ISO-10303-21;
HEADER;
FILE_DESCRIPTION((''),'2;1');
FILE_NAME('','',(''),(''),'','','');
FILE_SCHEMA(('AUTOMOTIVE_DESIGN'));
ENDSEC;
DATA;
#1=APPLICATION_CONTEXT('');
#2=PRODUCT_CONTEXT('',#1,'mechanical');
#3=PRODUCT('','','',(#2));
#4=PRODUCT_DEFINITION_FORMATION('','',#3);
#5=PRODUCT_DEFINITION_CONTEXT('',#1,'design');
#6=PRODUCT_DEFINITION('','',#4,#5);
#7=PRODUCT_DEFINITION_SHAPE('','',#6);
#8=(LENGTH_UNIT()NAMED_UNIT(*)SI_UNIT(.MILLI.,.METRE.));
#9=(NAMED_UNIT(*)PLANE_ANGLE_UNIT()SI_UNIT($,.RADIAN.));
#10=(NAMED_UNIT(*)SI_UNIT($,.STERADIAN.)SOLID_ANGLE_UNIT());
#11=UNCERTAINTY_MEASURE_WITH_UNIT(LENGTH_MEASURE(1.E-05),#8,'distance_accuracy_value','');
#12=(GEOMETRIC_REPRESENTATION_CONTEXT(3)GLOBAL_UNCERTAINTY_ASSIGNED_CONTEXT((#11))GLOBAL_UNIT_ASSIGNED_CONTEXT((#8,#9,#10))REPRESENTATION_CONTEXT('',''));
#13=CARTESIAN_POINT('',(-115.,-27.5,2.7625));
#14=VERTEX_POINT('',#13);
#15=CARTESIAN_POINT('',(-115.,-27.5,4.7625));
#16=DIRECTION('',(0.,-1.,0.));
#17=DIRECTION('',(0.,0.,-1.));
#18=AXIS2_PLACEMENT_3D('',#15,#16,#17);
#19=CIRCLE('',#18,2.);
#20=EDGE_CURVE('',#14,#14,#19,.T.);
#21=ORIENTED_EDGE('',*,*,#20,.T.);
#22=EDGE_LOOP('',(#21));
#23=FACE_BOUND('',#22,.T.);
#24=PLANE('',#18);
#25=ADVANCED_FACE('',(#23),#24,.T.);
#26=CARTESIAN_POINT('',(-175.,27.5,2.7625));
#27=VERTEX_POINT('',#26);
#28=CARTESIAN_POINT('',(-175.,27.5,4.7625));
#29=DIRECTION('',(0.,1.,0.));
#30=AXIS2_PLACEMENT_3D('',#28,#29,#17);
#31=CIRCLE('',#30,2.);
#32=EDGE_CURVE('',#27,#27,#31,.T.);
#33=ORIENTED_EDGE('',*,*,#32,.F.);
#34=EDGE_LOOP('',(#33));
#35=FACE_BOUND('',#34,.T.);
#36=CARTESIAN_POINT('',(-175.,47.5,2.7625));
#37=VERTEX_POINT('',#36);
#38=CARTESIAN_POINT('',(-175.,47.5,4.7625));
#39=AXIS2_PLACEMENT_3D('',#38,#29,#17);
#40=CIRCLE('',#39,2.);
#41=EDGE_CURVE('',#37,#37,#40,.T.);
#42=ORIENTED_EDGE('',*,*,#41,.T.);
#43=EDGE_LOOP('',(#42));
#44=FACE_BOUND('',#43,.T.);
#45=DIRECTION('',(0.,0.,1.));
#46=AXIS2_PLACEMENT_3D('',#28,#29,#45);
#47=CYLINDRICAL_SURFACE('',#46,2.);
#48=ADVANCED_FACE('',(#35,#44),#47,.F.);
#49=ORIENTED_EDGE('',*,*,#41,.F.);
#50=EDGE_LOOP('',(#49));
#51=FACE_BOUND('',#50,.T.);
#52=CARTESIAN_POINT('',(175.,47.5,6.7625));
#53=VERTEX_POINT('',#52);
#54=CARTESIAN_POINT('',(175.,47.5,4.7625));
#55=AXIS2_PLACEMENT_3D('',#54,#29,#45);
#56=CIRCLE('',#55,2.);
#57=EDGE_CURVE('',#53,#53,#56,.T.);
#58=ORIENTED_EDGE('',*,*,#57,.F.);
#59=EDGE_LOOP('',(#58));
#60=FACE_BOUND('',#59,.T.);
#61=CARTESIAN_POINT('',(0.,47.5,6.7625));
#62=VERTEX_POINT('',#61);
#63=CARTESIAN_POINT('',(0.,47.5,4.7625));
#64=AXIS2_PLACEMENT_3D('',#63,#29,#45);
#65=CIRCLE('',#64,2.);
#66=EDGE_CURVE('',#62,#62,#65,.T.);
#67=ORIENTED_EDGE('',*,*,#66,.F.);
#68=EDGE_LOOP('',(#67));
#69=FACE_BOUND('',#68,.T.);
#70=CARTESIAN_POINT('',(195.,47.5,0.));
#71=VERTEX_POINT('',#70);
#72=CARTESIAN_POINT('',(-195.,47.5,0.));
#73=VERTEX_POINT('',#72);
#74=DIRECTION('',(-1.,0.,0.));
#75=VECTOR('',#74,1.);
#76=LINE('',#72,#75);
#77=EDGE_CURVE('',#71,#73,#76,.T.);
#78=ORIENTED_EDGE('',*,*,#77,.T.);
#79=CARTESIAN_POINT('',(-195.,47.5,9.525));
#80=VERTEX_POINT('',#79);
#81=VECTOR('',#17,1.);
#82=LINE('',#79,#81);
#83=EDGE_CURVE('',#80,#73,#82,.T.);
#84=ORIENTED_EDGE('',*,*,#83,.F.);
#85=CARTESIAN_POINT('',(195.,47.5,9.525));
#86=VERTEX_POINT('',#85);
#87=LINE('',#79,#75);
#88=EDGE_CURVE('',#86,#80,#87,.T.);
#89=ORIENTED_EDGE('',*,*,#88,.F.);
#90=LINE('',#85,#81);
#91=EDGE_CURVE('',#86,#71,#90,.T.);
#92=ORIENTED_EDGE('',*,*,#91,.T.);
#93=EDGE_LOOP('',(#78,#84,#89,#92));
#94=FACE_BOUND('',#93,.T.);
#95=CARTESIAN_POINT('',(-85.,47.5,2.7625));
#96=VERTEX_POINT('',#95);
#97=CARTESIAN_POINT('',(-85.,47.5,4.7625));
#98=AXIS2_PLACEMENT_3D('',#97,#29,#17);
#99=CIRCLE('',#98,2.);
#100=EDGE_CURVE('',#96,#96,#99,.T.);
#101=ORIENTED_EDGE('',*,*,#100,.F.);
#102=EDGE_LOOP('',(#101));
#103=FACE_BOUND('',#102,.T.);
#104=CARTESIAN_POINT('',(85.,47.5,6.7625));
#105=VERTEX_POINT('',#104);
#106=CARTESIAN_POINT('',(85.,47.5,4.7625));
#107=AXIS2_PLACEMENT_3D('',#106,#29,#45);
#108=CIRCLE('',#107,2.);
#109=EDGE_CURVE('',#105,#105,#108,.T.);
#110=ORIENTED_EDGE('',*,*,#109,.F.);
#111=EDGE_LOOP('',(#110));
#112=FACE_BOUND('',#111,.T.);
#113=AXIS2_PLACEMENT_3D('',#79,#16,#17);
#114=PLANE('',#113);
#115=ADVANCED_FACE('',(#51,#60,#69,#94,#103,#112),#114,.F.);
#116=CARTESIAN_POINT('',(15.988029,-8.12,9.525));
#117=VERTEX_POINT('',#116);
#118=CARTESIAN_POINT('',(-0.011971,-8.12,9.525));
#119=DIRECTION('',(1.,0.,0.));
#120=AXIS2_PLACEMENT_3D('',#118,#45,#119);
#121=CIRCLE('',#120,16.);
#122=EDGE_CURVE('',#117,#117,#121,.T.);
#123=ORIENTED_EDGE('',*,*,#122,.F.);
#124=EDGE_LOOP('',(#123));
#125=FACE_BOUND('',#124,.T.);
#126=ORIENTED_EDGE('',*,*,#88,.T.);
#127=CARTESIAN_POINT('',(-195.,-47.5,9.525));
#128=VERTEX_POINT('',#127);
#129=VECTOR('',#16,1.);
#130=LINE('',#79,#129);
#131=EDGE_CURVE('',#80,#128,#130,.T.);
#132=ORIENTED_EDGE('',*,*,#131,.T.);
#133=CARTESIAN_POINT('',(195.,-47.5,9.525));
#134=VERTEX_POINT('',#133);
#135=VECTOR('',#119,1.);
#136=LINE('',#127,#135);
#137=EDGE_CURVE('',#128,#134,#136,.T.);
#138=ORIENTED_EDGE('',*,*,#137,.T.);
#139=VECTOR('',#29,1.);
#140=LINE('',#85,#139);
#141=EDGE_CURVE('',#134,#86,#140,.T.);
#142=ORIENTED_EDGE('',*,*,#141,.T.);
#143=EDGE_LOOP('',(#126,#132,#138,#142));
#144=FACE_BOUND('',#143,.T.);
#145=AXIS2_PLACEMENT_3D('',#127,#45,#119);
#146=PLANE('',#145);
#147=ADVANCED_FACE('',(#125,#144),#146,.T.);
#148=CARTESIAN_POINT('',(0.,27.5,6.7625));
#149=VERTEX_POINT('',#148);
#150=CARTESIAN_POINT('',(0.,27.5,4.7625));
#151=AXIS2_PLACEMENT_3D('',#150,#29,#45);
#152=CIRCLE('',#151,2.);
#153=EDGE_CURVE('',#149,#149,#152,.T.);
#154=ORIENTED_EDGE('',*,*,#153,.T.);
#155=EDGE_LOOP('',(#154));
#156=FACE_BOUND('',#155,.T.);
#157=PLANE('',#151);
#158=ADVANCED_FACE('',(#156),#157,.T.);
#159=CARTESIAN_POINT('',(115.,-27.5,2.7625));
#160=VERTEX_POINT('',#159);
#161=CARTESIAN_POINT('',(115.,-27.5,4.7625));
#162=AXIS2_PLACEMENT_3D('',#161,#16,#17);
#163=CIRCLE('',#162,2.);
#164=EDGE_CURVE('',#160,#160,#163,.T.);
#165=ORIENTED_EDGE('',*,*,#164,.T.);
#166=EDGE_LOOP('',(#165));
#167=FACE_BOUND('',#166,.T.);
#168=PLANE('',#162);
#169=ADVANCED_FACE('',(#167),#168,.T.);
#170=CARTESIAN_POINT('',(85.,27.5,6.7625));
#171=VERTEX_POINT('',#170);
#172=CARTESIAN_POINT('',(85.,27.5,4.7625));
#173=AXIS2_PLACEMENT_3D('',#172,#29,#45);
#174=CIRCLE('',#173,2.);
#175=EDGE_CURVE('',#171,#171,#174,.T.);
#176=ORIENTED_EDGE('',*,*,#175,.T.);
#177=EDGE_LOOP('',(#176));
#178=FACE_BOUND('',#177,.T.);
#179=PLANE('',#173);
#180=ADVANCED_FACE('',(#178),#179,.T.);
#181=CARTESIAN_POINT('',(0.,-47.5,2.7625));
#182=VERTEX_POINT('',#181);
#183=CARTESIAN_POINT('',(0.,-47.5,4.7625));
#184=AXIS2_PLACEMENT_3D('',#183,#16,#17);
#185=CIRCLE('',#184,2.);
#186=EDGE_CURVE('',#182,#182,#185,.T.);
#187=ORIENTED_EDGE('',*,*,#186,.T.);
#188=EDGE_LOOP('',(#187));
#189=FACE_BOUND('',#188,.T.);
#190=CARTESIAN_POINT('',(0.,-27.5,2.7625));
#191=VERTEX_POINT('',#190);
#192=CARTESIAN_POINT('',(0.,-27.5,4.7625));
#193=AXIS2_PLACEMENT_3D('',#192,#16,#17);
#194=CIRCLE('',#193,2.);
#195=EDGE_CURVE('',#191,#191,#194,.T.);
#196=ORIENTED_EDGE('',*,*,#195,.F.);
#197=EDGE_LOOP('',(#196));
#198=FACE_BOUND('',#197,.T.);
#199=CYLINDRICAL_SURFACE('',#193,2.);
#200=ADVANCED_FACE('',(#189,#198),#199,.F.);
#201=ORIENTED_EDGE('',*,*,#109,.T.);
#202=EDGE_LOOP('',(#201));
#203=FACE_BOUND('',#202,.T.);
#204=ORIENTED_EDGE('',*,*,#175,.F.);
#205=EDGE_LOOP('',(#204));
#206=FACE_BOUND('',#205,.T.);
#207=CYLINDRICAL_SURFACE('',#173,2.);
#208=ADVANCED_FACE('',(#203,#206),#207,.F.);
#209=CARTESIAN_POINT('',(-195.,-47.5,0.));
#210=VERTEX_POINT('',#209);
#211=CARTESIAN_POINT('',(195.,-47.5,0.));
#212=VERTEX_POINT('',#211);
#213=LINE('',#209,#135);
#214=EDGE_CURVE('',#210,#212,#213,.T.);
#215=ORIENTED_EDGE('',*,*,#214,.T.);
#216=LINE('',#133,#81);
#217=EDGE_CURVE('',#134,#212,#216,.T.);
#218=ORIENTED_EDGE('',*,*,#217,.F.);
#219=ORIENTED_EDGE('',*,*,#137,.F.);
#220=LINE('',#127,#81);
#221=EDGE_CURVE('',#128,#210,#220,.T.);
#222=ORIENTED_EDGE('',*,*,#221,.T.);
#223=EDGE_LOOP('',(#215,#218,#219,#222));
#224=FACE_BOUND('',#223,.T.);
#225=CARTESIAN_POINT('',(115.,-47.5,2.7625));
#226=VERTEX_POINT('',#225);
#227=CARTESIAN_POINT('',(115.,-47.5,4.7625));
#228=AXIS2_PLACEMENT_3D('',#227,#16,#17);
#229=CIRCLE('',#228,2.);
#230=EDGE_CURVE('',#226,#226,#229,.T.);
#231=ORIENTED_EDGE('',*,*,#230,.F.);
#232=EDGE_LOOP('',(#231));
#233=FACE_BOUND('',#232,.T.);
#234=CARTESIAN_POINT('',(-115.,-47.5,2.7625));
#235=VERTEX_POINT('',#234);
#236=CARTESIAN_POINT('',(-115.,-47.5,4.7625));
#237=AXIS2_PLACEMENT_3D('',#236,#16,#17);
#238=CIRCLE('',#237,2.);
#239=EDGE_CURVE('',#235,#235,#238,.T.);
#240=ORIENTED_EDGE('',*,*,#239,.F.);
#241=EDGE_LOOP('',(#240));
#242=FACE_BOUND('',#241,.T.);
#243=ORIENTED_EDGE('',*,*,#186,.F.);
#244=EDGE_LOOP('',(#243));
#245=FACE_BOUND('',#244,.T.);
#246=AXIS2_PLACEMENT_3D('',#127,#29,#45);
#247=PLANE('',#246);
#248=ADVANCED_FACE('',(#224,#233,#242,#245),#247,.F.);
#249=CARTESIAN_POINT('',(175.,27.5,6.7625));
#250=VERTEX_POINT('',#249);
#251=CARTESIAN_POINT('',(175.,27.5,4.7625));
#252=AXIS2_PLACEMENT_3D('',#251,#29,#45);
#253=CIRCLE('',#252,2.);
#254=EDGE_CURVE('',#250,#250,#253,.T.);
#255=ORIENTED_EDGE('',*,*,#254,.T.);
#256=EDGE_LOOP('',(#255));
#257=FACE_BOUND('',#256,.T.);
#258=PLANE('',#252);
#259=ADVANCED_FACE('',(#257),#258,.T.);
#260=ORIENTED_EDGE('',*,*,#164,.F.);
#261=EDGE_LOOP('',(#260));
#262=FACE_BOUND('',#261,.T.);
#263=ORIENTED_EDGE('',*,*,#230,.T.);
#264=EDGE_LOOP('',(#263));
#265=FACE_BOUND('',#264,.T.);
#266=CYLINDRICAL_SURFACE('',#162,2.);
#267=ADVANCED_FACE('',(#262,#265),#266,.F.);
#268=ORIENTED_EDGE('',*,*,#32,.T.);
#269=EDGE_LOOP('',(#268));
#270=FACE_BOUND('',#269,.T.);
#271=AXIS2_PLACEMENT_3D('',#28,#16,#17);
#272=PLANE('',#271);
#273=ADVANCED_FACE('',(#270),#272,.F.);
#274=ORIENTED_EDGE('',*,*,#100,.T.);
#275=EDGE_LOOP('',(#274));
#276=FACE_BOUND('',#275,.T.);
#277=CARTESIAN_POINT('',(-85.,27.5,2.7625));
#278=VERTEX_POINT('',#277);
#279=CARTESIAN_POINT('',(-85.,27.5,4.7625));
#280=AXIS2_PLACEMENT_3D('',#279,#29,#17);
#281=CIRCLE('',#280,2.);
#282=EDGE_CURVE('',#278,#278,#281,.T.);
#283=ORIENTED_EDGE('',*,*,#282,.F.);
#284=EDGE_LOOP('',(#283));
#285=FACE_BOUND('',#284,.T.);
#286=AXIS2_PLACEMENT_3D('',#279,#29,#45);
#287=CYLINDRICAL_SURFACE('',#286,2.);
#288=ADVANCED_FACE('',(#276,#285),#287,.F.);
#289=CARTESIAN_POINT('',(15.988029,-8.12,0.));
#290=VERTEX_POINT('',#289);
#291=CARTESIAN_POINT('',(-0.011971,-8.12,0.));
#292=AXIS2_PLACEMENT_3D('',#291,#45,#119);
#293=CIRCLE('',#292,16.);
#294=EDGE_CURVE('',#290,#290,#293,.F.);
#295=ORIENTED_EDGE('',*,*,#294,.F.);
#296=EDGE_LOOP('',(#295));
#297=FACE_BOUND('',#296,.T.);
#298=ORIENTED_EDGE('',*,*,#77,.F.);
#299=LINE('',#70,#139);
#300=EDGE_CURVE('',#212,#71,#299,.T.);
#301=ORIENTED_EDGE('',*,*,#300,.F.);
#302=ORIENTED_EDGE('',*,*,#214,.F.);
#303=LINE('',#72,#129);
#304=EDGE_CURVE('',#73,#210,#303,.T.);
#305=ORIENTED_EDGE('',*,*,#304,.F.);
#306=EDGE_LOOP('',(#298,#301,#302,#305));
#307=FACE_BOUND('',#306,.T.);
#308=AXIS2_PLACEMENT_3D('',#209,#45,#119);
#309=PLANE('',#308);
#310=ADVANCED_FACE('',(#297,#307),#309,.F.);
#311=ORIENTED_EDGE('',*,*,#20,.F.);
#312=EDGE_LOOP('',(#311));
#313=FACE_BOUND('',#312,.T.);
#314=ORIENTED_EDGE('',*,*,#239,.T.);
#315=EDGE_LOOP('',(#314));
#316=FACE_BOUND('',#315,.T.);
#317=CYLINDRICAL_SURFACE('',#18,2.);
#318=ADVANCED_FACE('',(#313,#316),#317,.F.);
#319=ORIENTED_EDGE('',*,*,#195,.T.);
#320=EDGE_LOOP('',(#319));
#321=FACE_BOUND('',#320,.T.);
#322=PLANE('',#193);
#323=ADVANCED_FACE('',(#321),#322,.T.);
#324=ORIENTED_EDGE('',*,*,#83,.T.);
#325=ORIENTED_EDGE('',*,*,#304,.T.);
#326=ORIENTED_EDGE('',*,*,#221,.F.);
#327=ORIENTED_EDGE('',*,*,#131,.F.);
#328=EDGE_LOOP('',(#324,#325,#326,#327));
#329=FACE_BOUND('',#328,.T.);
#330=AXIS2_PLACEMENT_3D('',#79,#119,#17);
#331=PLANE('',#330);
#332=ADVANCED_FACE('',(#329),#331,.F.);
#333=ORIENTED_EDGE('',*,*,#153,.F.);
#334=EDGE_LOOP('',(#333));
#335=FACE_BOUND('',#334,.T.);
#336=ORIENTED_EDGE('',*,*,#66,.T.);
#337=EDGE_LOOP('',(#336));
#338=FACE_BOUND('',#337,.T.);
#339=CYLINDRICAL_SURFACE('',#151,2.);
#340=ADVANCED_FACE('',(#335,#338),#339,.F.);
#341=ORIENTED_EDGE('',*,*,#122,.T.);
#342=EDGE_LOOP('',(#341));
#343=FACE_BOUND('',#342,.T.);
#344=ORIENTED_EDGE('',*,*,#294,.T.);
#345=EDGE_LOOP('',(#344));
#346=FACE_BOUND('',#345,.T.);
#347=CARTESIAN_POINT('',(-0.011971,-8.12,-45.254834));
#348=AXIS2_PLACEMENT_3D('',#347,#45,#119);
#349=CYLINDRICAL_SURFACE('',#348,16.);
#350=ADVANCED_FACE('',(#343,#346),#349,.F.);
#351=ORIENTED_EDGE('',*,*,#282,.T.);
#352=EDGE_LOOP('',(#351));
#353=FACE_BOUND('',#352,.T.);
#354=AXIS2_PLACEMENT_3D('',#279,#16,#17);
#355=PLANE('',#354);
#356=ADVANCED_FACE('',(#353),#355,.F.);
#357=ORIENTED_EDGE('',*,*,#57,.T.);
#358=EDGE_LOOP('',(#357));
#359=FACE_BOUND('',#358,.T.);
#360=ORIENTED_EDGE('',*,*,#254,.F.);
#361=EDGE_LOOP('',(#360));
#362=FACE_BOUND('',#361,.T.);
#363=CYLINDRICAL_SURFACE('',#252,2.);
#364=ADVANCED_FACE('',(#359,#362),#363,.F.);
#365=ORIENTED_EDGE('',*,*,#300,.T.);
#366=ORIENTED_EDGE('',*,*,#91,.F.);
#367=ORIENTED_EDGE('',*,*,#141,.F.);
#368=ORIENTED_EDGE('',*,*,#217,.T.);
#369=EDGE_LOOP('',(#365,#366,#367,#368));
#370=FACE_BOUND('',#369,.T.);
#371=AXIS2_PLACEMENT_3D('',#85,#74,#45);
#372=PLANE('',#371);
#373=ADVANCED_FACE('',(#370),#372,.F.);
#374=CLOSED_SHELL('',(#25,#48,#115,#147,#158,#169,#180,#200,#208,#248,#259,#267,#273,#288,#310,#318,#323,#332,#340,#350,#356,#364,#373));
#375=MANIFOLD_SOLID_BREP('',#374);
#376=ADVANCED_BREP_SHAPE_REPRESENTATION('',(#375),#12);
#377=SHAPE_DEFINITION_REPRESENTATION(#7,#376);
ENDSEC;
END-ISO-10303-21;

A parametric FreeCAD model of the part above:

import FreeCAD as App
import Part
import Sketcher

V = App.Vector
Q = App.Units.Quantity


def add_polygon(sketch, points):
    """Adds a closed chain of lines whose ends are joined by coincident constraints."""
    first, n = sketch.GeometryCount, len(points)
    for a, b in zip(points, points[1:] + points[:1]):
        sketch.addGeometry(Part.LineSegment(App.Vector(*a, 0), App.Vector(*b, 0)), False)
    for i in range(n):
        sketch.addConstraint(Sketcher.Constraint("Coincident", first + i, 2, first + (i + 1) % n, 1))

doc = App.newDocument("Part")
body = doc.addObject("PartDesign::Body", "Body")

sketch1 = body.newObject("Sketcher::SketchObject", "Sketch")
sketch1.AttachmentSupport = (doc.getObject("XY_Plane"), [""])
sketch1.MapMode = "FlatFace"
add_polygon(sketch1, [(-195, 48), (-195, -48), (195, -48), (195, 48)])
sketch1.addConstraint([
    Sketcher.Constraint("Vertical", 0),
    Sketcher.Constraint("Horizontal", 1),
    Sketcher.Constraint("Vertical", 2),
    Sketcher.Constraint("Horizontal", 3),
    Sketcher.Constraint("Symmetric", 0, 2, 2, 2, -1, 1),
    Sketcher.Constraint("DistanceX", 1, 1, 1, 2, Q("390 mm")),
    Sketcher.Constraint("DistanceY", 0, 2, 0, 1, Q("95 mm")),
])
pad1 = body.newObject("PartDesign::Pad", "Pad")
pad1.Profile = sketch1
pad1.Length = 9.525

sketch2 = body.newObject("Sketcher::SketchObject", "Sketch001")
sketch2.AttachmentSupport = (doc.getObject("XY_Plane"), [""])
sketch2.MapMode = "FlatFace"
sketch2.AttachmentOffset = App.Placement(V(0, 0, 9.525), App.Rotation())
sketch2.addGeometry(Part.Circle(V(0, -8, 0), V(0, 0, 1), 16), False)
sketch2.addConstraint([
    Sketcher.Constraint("Diameter", 0, Q("32 mm")),
    Sketcher.Constraint("DistanceY", 0, 3, -1, 1, Q("8.12 mm")),
    Sketcher.Constraint("DistanceX", 0, 3, -1, 1, Q("0.011971 mm")),
])
pocket1 = body.newObject("PartDesign::Pocket", "Pocket")
pocket1.Profile = sketch2
pocket1.Length = 9.525

sketch3 = body.newObject("Sketcher::SketchObject", "Sketch002")
sketch3.AttachmentSupport = (doc.getObject("XZ_Plane"), [""])
sketch3.MapMode = "FlatFace"
sketch3.AttachmentOffset = App.Placement(V(0, 0, -47.5), App.Rotation())
sketch3.addGeometry([
    Part.Circle(V(175, 4.8, 0), V(0, 0, 1), 2),
    Part.Circle(V(85, 4.8, 0), V(0, 0, 1), 2),
    Part.Circle(V(0, 4.8, 0), V(0, 0, 1), 2),
    Part.Circle(V(-175, 4.8, 0), V(0, 0, 1), 2),
    Part.Circle(V(-85, 4.8, 0), V(0, 0, 1), 2),
], False)
sketch3.addConstraint([
    Sketcher.Constraint("Equal", 0, 1),
    Sketcher.Constraint("Equal", 1, 2),
    Sketcher.Constraint("Equal", 2, 3),
    Sketcher.Constraint("Equal", 3, 4),
    Sketcher.Constraint("Symmetric", 0, 3, 3, 3, -2),
    Sketcher.Constraint("Symmetric", 1, 3, 4, 3, -2),
    Sketcher.Constraint("PointOnObject", 2, 3, -2),
    Sketcher.Constraint("Horizontal", 0, 3, 1, 3),
    Sketcher.Constraint("Horizontal", 1, 3, 2, 3),
    Sketcher.Constraint("Diameter", 0, Q("4 mm")),
    Sketcher.Constraint("DistanceX", -1, 1, 0, 3, Q("175 mm")),
    Sketcher.Constraint("DistanceX", -1, 1, 1, 3, Q("85 mm")),
    Sketcher.Constraint("DistanceY", -1, 1, 0, 3, Q("4.7625 mm")),
])
pocket2 = body.newObject("PartDesign::Pocket", "Pocket001")
pocket2.Profile = sketch3
pocket2.Length = 20
pocket2.Reversed = True

sketch4 = body.newObject("Sketcher::SketchObject", "Sketch003")
sketch4.AttachmentSupport = (doc.getObject("XZ_Plane"), [""])
sketch4.MapMode = "FlatFace"
sketch4.AttachmentOffset = App.Placement(V(0, 0, 27.5), App.Rotation())
sketch4.addGeometry([
    Part.Circle(V(0, 4.8, 0), V(0, 0, 1), 2),
    Part.Circle(V(-115, 4.8, 0), V(0, 0, 1), 2),
    Part.Circle(V(115, 4.8, 0), V(0, 0, 1), 2),
], False)
sketch4.addConstraint([
    Sketcher.Constraint("Equal", 0, 1),
    Sketcher.Constraint("Equal", 1, 2),
    Sketcher.Constraint("Symmetric", 1, 3, 2, 3, -2),
    Sketcher.Constraint("PointOnObject", 0, 3, -2),
    Sketcher.Constraint("Horizontal", 0, 3, 1, 3),
    Sketcher.Constraint("Diameter", 0, Q("4 mm")),
    Sketcher.Constraint("DistanceX", 1, 3, -1, 1, Q("115 mm")),
    Sketcher.Constraint("DistanceY", -1, 1, 0, 3, Q("4.7625 mm")),
])
pocket3 = body.newObject("PartDesign::Pocket", "Pocket002")
pocket3.Profile = sketch4
pocket3.Length = 20
pocket3.Reversed = True

doc.recompute()
